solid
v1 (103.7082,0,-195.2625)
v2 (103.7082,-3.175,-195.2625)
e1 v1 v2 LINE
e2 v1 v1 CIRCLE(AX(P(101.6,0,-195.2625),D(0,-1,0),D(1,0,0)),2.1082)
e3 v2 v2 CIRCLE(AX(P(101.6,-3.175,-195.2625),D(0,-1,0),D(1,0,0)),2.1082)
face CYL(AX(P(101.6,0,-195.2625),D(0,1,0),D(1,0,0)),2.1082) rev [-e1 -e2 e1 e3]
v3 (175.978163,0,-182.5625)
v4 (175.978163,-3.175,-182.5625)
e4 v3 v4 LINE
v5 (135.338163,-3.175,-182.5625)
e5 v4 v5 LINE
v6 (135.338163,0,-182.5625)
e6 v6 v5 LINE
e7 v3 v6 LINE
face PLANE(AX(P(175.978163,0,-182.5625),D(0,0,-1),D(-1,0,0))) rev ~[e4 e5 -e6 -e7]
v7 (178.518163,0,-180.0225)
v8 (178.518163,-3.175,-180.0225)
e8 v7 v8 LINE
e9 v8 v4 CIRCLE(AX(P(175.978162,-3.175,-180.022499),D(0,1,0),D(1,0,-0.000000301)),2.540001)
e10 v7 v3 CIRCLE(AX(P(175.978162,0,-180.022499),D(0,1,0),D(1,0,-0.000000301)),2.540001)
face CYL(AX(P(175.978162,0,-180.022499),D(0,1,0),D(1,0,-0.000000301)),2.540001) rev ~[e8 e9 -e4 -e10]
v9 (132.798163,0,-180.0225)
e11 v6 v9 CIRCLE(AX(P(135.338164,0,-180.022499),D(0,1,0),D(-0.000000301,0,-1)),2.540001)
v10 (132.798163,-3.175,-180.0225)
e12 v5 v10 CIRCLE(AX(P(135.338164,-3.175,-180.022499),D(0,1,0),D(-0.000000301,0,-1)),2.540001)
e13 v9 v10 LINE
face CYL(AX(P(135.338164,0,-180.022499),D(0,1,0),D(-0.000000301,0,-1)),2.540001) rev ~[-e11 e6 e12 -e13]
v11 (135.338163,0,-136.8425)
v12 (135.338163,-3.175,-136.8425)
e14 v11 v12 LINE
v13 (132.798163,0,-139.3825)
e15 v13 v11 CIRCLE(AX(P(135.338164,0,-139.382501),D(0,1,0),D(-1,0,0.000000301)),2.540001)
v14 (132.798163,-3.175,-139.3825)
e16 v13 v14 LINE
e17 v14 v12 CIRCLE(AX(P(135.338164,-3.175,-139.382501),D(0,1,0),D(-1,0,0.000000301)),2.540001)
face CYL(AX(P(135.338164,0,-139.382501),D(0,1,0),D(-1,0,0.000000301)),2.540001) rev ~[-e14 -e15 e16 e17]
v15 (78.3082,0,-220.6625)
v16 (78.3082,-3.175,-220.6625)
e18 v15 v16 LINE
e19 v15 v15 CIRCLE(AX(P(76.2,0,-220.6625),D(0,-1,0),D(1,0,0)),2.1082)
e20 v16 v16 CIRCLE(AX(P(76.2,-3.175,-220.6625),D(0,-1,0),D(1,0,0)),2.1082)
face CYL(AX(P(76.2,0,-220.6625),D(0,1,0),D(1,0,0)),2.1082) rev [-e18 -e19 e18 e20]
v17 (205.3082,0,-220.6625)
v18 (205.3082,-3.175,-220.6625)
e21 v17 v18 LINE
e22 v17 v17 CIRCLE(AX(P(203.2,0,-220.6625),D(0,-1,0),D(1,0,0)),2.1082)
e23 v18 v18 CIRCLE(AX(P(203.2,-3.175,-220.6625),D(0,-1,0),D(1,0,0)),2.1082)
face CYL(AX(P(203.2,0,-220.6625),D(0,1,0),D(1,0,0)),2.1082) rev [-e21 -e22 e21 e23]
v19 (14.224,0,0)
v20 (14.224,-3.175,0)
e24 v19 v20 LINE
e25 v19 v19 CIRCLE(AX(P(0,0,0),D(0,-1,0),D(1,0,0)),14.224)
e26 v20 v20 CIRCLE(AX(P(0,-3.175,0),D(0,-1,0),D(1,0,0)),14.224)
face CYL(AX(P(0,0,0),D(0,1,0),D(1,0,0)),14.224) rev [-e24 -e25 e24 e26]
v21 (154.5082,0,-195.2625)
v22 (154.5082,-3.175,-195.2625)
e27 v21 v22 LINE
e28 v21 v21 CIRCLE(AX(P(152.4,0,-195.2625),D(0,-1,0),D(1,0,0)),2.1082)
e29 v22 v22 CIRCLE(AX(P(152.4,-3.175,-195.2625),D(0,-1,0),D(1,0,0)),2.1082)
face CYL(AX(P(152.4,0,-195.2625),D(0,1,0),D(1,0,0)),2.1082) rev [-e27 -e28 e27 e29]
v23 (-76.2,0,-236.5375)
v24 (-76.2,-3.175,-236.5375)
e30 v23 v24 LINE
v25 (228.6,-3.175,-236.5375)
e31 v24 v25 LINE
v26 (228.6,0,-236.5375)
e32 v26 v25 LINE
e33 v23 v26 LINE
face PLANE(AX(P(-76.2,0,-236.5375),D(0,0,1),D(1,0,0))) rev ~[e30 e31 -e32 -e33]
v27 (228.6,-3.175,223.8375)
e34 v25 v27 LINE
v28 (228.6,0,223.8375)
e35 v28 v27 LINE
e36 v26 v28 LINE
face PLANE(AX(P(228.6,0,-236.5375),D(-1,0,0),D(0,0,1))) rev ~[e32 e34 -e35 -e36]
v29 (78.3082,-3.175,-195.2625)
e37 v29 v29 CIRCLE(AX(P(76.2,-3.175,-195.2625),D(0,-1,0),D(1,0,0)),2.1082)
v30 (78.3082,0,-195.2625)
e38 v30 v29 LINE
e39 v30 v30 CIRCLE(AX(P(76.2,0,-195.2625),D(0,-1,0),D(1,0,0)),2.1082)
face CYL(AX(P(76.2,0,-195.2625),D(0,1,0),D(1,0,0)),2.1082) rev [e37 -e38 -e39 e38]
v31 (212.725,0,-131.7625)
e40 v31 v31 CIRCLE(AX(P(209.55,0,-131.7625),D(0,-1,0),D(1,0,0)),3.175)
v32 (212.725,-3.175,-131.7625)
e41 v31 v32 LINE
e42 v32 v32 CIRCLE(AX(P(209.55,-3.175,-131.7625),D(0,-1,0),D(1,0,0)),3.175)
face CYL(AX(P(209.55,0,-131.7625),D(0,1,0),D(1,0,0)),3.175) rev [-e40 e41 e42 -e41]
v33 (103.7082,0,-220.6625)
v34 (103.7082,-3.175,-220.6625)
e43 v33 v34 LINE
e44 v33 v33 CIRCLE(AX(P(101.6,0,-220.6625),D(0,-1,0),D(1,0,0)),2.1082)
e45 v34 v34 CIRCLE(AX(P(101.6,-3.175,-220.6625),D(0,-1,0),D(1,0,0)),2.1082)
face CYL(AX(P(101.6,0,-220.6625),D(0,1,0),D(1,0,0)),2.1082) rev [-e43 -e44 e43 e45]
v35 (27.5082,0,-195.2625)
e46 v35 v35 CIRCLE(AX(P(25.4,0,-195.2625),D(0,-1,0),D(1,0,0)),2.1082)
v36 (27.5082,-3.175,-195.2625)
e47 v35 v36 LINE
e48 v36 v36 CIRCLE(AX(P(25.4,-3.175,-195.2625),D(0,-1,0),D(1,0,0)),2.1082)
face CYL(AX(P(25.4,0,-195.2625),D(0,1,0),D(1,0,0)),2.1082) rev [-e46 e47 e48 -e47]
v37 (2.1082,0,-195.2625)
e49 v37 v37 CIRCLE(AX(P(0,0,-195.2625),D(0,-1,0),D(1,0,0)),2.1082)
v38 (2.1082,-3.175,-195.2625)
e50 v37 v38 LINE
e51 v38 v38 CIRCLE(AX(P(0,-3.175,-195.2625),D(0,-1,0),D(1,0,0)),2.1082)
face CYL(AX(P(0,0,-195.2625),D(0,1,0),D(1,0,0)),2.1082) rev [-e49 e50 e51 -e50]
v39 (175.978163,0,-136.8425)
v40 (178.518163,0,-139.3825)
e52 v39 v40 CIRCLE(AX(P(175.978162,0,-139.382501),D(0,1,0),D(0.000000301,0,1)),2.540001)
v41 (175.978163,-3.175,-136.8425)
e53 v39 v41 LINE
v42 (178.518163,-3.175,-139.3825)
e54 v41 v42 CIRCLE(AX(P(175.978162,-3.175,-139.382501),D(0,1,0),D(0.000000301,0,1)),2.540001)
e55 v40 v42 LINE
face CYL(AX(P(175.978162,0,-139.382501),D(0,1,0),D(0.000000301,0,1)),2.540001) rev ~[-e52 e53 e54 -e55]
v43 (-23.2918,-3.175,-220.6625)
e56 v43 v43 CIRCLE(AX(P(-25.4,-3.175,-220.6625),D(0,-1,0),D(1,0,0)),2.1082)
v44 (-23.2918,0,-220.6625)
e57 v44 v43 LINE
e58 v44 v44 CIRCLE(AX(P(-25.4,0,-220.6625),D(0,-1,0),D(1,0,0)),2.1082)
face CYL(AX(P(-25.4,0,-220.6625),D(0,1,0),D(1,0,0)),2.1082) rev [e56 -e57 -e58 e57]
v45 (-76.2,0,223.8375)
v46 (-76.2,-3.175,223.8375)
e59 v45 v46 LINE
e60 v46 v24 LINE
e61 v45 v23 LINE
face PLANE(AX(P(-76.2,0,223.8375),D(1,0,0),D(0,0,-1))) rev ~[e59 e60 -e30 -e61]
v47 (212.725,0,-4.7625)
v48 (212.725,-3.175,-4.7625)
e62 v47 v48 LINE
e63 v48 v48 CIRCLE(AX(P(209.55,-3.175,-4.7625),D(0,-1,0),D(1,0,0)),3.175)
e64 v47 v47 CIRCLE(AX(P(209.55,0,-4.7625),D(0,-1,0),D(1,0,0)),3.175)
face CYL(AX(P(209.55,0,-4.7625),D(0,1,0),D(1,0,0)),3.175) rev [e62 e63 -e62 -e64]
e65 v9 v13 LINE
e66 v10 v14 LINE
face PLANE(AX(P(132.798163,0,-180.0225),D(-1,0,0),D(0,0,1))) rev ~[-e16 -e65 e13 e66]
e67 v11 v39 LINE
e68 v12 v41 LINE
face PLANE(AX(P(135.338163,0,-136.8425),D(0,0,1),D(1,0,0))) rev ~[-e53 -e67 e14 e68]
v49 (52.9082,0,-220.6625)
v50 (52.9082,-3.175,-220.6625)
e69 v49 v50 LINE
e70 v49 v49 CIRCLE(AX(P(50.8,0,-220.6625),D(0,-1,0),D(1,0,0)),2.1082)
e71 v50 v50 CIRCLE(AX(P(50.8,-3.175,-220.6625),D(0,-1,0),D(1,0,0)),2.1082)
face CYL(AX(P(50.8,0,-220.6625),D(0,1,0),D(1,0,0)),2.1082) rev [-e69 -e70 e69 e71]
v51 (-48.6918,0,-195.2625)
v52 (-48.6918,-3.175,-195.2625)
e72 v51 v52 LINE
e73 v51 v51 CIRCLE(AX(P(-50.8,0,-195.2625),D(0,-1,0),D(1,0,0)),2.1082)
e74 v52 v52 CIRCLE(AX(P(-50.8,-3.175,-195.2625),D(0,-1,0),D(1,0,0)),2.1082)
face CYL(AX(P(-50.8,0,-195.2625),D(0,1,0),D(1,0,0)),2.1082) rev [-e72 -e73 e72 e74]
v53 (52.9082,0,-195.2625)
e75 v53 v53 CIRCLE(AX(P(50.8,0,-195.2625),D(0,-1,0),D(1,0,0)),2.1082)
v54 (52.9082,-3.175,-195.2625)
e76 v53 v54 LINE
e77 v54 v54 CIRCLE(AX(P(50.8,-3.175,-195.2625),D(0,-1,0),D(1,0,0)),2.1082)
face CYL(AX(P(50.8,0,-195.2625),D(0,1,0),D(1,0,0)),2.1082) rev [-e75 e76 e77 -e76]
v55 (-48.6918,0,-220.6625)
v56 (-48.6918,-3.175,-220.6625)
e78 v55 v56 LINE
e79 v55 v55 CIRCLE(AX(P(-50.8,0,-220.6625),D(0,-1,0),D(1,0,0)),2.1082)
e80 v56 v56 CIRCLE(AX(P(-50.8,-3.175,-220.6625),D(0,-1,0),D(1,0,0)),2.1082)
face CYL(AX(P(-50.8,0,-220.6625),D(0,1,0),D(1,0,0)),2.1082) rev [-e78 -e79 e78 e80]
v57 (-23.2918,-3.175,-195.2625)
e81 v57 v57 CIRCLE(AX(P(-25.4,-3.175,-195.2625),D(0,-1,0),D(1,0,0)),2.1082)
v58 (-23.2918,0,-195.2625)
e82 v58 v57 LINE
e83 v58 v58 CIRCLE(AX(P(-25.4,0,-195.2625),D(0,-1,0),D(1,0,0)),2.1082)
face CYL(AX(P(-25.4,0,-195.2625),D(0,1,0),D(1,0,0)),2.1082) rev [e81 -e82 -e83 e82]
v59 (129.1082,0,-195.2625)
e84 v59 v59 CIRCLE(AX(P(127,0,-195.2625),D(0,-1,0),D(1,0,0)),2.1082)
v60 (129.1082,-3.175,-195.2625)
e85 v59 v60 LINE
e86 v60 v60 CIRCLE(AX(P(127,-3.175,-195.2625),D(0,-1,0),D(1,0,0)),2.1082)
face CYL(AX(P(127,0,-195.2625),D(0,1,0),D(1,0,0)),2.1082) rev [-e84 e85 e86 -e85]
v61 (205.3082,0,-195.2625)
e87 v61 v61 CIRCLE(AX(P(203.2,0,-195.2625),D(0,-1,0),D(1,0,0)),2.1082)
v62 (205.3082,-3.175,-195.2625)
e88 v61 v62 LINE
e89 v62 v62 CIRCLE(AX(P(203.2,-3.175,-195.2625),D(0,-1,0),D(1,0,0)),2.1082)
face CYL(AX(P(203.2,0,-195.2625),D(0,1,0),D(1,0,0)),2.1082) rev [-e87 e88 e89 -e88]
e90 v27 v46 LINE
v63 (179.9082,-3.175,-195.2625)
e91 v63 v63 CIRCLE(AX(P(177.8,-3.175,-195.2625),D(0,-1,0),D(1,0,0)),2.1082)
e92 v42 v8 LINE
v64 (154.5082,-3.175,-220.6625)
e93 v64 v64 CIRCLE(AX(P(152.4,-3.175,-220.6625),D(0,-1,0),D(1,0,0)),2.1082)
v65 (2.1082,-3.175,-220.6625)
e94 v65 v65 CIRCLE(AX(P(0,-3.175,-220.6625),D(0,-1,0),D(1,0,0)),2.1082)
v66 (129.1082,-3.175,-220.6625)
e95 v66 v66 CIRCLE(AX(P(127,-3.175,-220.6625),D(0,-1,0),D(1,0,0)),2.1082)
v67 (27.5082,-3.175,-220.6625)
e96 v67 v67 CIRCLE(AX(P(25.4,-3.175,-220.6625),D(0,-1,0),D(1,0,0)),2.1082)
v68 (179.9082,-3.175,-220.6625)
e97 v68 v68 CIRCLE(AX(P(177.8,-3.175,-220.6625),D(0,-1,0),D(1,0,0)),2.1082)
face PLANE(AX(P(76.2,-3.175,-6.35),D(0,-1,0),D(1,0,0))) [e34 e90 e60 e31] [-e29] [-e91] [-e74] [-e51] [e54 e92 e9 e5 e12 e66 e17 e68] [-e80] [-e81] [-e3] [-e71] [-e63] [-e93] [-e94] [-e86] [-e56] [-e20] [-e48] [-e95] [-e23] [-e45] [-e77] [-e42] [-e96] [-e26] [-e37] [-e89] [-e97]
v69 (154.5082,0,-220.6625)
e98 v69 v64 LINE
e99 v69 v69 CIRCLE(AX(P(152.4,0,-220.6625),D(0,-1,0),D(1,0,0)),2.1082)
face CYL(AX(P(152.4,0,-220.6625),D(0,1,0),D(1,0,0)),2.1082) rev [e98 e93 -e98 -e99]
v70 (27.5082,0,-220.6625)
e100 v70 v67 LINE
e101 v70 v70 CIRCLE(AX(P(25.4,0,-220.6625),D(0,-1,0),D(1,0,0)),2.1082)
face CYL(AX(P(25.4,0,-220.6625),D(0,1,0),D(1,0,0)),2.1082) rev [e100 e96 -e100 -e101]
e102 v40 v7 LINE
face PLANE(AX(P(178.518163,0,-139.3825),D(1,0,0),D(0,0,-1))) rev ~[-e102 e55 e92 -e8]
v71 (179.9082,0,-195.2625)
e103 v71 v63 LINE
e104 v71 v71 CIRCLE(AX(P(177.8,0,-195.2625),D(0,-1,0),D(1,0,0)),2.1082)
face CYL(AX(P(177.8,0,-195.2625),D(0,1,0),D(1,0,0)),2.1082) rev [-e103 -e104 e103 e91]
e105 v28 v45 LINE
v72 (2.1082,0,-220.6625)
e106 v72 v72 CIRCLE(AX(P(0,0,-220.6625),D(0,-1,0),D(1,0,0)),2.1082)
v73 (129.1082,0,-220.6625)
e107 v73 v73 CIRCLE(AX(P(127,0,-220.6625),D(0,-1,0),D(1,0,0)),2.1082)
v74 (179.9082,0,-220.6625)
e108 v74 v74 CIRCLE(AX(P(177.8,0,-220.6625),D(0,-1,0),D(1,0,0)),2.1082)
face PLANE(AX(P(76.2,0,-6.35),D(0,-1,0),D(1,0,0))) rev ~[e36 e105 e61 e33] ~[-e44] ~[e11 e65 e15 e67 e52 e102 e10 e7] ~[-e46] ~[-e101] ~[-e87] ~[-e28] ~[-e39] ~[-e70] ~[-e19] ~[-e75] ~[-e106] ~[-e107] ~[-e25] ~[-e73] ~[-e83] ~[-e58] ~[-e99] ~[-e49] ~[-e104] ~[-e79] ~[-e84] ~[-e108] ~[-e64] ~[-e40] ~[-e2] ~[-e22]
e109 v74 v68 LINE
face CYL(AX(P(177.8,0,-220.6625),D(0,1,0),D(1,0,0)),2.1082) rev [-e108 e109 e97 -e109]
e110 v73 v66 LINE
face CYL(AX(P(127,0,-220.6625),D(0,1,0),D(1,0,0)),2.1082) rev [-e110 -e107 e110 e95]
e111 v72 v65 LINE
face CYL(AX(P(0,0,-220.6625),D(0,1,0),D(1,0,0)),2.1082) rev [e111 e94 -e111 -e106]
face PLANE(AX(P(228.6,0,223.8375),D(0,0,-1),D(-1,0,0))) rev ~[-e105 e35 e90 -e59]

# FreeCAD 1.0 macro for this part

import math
import FreeCAD as App
import Part
import Sketcher
from FreeCAD import Vector
Q = App.Units.Quantity

doc = App.newDocument("Part")
body = doc.addObject("PartDesign::Body", "Body")

sketch1 = body.newObject("Sketcher::SketchObject", "Sketch")
sketch1.AttachmentSupport = (doc.getObject("XZ_Plane"), [""])
sketch1.MapMode = "FlatFace"
sketch1.addGeometry([
    Part.LineSegment(Vector(228.6, 223.8375, 0), Vector(-76.2, 223.8375, 0)),
    Part.LineSegment(Vector(-76.2, 223.8375, 0), Vector(-76.2, -236.5375, 0)),
    Part.LineSegment(Vector(-76.2, -236.5375, 0), Vector(228.6, -236.5375, 0)),
    Part.LineSegment(Vector(228.6, -236.5375, 0), Vector(228.6, 223.8375, 0)),
    Part.Circle(Vector(-50.8, -220.6625, 0), Vector(0, 0, 1), 2.1082),
    Part.Circle(Vector(-25.4, -220.6625, 0), Vector(0, 0, 1), 2.1082),
    Part.Circle(Vector(-50.8, -195.2625, 0), Vector(0, 0, 1), 2.1082),
    Part.Circle(Vector(-25.4, -195.2625, 0), Vector(0, 0, 1), 2.1082),
    Part.Circle(Vector(0, -220.6625, 0), Vector(0, 0, 1), 2.1082),
    Part.Circle(Vector(0, -195.2625, 0), Vector(0, 0, 1), 2.1082),
    Part.Circle(Vector(25.4, -220.6625, 0), Vector(0, 0, 1), 2.1082),
    Part.Circle(Vector(25.4, -195.2625, 0), Vector(0, 0, 1), 2.1082),
    Part.Circle(Vector(50.8, -220.6625, 0), Vector(0, 0, 1), 2.1082),
    Part.Circle(Vector(76.2, -220.6625, 0), Vector(0, 0, 1), 2.1082),
    Part.Circle(Vector(50.8, -195.2625, 0), Vector(0, 0, 1), 2.1082),
    Part.Circle(Vector(76.2, -195.2625, 0), Vector(0, 0, 1), 2.1082),
    Part.Circle(Vector(101.6, -220.6625, 0), Vector(0, 0, 1), 2.1082),
    Part.Circle(Vector(101.6, -195.2625, 0), Vector(0, 0, 1), 2.1082),
    Part.Circle(Vector(127, -220.6625, 0), Vector(0, 0, 1), 2.1082),
    Part.Circle(Vector(127, -195.2625, 0), Vector(0, 0, 1), 2.1082),
    Part.Circle(Vector(152.4, -220.6625, 0), Vector(0, 0, 1), 2.1082),
    Part.Circle(Vector(177.8, -220.6625, 0), Vector(0, 0, 1), 2.1082),
    Part.Circle(Vector(152.4, -195.2625, 0), Vector(0, 0, 1), 2.1082),
    Part.Circle(Vector(177.8, -195.2625, 0), Vector(0, 0, 1), 2.1082),
    Part.Circle(Vector(203.2, -220.6625, 0), Vector(0, 0, 1), 2.1082),
    Part.Circle(Vector(203.2, -195.2625, 0), Vector(0, 0, 1), 2.1082),
    Part.ArcOfCircle(Part.Circle(Vector(135.338164, -139.382501, 0), Vector(0, 0, 1), 2.540001), math.radians(90.000017), math.radians(179.999983)),
    Part.LineSegment(Vector(135.338163, -136.8425, 0), Vector(175.978163, -136.8425, 0)),
    Part.ArcOfCircle(Part.Circle(Vector(175.978162, -139.382501, 0), Vector(0, 0, 1), 2.540001), math.radians(0.000017), math.radians(89.999983)),
    Part.LineSegment(Vector(178.518163, -139.3825, 0), Vector(178.518163, -180.0225, 0)),
    Part.ArcOfCircle(Part.Circle(Vector(175.978162, -180.022499, 0), Vector(0, 0, 1), 2.540001), math.radians(-89.999983), math.radians(-0.000017)),
    Part.LineSegment(Vector(175.978163, -182.5625, 0), Vector(135.338163, -182.5625, 0)),
    Part.ArcOfCircle(Part.Circle(Vector(135.338164, -180.022499, 0), Vector(0, 0, 1), 2.540001), math.radians(-179.999983), math.radians(-90.000017)),
    Part.LineSegment(Vector(132.798163, -180.0225, 0), Vector(132.798163, -139.3825, 0)),
    Part.Circle(Vector(209.55, -131.7625, 0), Vector(0, 0, 1), 3.175),
    Part.Circle(Vector(0, 0, 0), Vector(0, 0, 1), 14.224),
    Part.Circle(Vector(209.55, -4.7625, 0), Vector(0, 0, 1), 3.175),
], False)
sketch1.addConstraint([
    Sketcher.Constraint("Coincident", 0, 2, 1, 1),
    Sketcher.Constraint("Coincident", 1, 2, 2, 1),
    Sketcher.Constraint("Coincident", 2, 2, 3, 1),
    Sketcher.Constraint("Coincident", 3, 2, 0, 1),
    Sketcher.Constraint("Tangent", 26, 1, 27, 1),
    Sketcher.Constraint("Tangent", 27, 2, 28, 2),
    Sketcher.Constraint("Tangent", 28, 1, 29, 1),
    Sketcher.Constraint("Tangent", 29, 2, 30, 2),
    Sketcher.Constraint("Tangent", 30, 1, 31, 1),
    Sketcher.Constraint("Tangent", 31, 2, 32, 2),
    Sketcher.Constraint("Tangent", 32, 1, 33, 1),
    Sketcher.Constraint("Tangent", 33, 2, 26, 2),
    Sketcher.Constraint("Horizontal", 0),
    Sketcher.Constraint("Vertical", 1),
    Sketcher.Constraint("Horizontal", 2),
    Sketcher.Constraint("Vertical", 3),
    Sketcher.Constraint("Horizontal", 27),
    Sketcher.Constraint("Vertical", 29),
    Sketcher.Constraint("Horizontal", 31),
    Sketcher.Constraint("Vertical", 33),
    Sketcher.Constraint("Coincident", 35, 3, -1, 1),
    Sketcher.Constraint("Equal", 4, 5),
    Sketcher.Constraint("Equal", 5, 6),
    Sketcher.Constraint("Equal", 6, 7),
    Sketcher.Constraint("Equal", 7, 8),
    Sketcher.Constraint("Equal", 8, 9),
    Sketcher.Constraint("Equal", 9, 10),
    Sketcher.Constraint("Equal", 10, 11),
    Sketcher.Constraint("Equal", 11, 12),
    Sketcher.Constraint("Equal", 12, 13),
    Sketcher.Constraint("Equal", 13, 14),
    Sketcher.Constraint("Equal", 14, 15),
    Sketcher.Constraint("Equal", 15, 16),
    Sketcher.Constraint("Equal", 16, 17),
    Sketcher.Constraint("Equal", 17, 18),
    Sketcher.Constraint("Equal", 18, 19),
    Sketcher.Constraint("Equal", 19, 20),
    Sketcher.Constraint("Equal", 20, 21),
    Sketcher.Constraint("Equal", 21, 22),
    Sketcher.Constraint("Equal", 22, 23),
    Sketcher.Constraint("Equal", 23, 24),
    Sketcher.Constraint("Equal", 24, 25),
    Sketcher.Constraint("Equal", 26, 28),
    Sketcher.Constraint("Equal", 28, 30),
    Sketcher.Constraint("Equal", 30, 32),
    Sketcher.Constraint("Equal", 34, 36),
    Sketcher.Constraint("Symmetric", 5, 3, 10, 3, -2),
    Sketcher.Constraint("Symmetric", 7, 3, 11, 3, -2),
    Sketcher.Constraint("Symmetric", 4, 3, 12, 3, -2),
    Sketcher.Constraint("Symmetric", 6, 3, 14, 3, -2),
    Sketcher.Constraint("PointOnObject", 8, 3, -2),
    Sketcher.Constraint("PointOnObject", 9, 3, -2),
    Sketcher.Constraint("Horizontal", 4, 3, 5, 3),
    Sketcher.Constraint("Horizontal", 6, 3, 7, 3),
    Sketcher.Constraint("Horizontal", 5, 3, 8, 3),
    Sketcher.Constraint("Horizontal", 7, 3, 9, 3),
    Sketcher.Constraint("Horizontal", 12, 3, 13, 3),
    Sketcher.Constraint("Horizontal", 14, 3, 15, 3),
    Sketcher.Constraint("Horizontal", 13, 3, 16, 3),
    Sketcher.Constraint("Horizontal", 15, 3, 17, 3),
    Sketcher.Constraint("Horizontal", 16, 3, 18, 3),
    Sketcher.Constraint("Horizontal", 17, 3, 19, 3),
    Sketcher.Constraint("Horizontal", 18, 3, 20, 3),
    Sketcher.Constraint("Horizontal", 20, 3, 21, 3),
    Sketcher.Constraint("Horizontal", 19, 3, 22, 3),
    Sketcher.Constraint("Horizontal", 22, 3, 23, 3),
    Sketcher.Constraint("Horizontal", 21, 3, 24, 3),
    Sketcher.Constraint("Horizontal", 23, 3, 25, 3),
    Sketcher.Constraint("Vertical", 4, 3, 6, 3),
    Sketcher.Constraint("Vertical", 5, 3, 7, 3),
    Sketcher.Constraint("Vertical", 13, 3, 15, 3),
    Sketcher.Constraint("Vertical", 16, 3, 17, 3),
    Sketcher.Constraint("Vertical", 18, 3, 19, 3),
    Sketcher.Constraint("Vertical", 20, 3, 22, 3),
    Sketcher.Constraint("Vertical", 21, 3, 23, 3),
    Sketcher.Constraint("Vertical", 24, 3, 25, 3),
    Sketcher.Constraint("Vertical", 34, 3, 36, 3),
    Sketcher.Constraint("Equal", 31, 29),
    Sketcher.Constraint("Radius", 26, Q("0.1 in")),
    Sketcher.Constraint("Diameter", 34, Q("0.25 in")),
    Sketcher.Constraint("Diameter", 35, Q("1.12 in")),
    Sketcher.Constraint("DistanceX", 0, 2, 0, 1, Q("12 in")),
    Sketcher.Constraint("Diameter", 4, Q("0.166 in")),
    Sketcher.Constraint("DistanceX", 27, 1, 27, 2, Q("1.6 in")),
    Sketcher.Constraint("DistanceX", 4, 3, -1, 1, Q("2 in")),
    Sketcher.Constraint("DistanceX", 5, 3, -1, 1, Q("1 in")),
    Sketcher.Constraint("DistanceX", -1, 1, 13, 3, Q("3 in")),
    Sketcher.Constraint("DistanceX", -1, 1, 16, 3, Q("4 in")),
    Sketcher.Constraint("DistanceX", -1, 1, 18, 3, Q("5 in")),
    Sketcher.Constraint("DistanceX", -1, 1, 20, 3, Q("6 in")),
    Sketcher.Constraint("DistanceX", -1, 1, 21, 3, Q("7 in")),
    Sketcher.Constraint("DistanceX", -1, 1, 24, 3, Q("8 in")),
    Sketcher.Constraint("DistanceX", 0, 2, -1, 1, Q("3 in")),
    Sketcher.Constraint("DistanceY", 4, 3, 6, 3, Q("1 in")),
    Sketcher.Constraint("DistanceY", 34, 3, 36, 3, Q("5 in")),
    Sketcher.Constraint("DistanceY", 36, 3, 0, 2, Q("9 in")),
    Sketcher.Constraint("DistanceY", 19, 3, 26, 3, Q("2.2 in")),
    Sketcher.Constraint("DistanceY", 28, 3, 34, 3, Q("0.3 in")),
    Sketcher.Constraint("DistanceY", 1, 2, 1, 1, Q("18.125 in")),
    Sketcher.Constraint("DistanceX", -1, 1, 34, 3, Q("8.25 in")),
    Sketcher.Constraint("DistanceY", 4, 3, -1, 1, Q("8.6875 in")),
    Sketcher.Constraint("DistanceX", -1, 1, 26, 3, 135.338164),
])
pad1 = body.newObject("PartDesign::Pad", "Pad")
pad1.Profile = sketch1
pad1.Length = Q("0.125 in")

doc.recompute()
